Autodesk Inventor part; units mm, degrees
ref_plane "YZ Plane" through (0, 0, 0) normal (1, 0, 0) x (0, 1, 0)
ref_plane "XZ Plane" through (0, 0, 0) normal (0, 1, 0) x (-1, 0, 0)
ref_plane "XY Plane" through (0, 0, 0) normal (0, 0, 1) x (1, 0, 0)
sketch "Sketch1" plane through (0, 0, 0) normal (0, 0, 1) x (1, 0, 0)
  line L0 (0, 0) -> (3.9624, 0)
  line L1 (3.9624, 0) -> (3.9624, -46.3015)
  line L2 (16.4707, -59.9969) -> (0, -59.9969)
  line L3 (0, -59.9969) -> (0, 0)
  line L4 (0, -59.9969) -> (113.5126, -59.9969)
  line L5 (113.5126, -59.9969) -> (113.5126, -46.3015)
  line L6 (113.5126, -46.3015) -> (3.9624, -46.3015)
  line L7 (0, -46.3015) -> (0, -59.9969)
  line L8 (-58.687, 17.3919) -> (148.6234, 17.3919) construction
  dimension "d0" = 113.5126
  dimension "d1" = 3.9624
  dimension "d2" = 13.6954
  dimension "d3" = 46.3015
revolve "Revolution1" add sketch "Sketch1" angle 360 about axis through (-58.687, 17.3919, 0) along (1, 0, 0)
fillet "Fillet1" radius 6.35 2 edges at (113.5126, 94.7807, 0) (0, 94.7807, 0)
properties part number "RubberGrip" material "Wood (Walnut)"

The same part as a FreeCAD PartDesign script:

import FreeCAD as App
import Part
import Sketcher
from FreeCAD import Vector
Q = App.Units.Quantity


def edges_at(feature, points):
    """Names of the edges that pass closest to the given points."""
    edges = feature.Shape.Edges
    near = lambda p: min(range(len(edges)), key=lambda i: edges[i].distToShape(Part.Vertex(*p))[0])
    return sorted({f"Edge{near(p) + 1}" for p in points})

doc = App.newDocument("Part")
params = doc.addObject("Spreadsheet::Sheet", "Params")
for row, (alias, value) in enumerate([
    ("sketch1_width", "0.156 in"),
    ("sketch1_width2", "4.469 in"),
    ("revolution_angle", "360 deg"),
    ("fillet_radius", "0.25 in"),
], start=1):
    params.set(f"A{row}", alias)
    params.set(f"B{row}", "=" + value)
    params.setAlias(f"B{row}", alias)

body = doc.addObject("PartDesign::Body", "Body")

# Sketch on XY plane
sketch1 = body.newObject("Sketcher::SketchObject", "Sketch")
sketch1.AttachmentSupport = (doc.getObject("XY_Plane"), [""])
sketch1.MapMode = "FlatFace"
sketch1.addGeometry([
    Part.LineSegment(Vector(3.9624, 0, 0), Vector(0, 0, 0)),  # 0
    Part.LineSegment(Vector(0, 0, 0), Vector(0, -59.9969, 0)),  # 1
    Part.LineSegment(Vector(0, -59.9969, 0), Vector(113.5126, -59.9969, 0)),  # 2
    Part.LineSegment(Vector(113.5126, -59.9969, 0), Vector(113.5126, -46.3015, 0)),  # 3
    Part.LineSegment(Vector(113.5126, -46.3015, 0), Vector(3.9624, -46.3015, 0)),  # 4
    Part.LineSegment(Vector(3.9624, -46.3015, 0), Vector(3.9624, 0, 0)),  # 5
], False)
sketch1.addGeometry(Part.LineSegment(Vector(0, 17.3919, 0), Vector(113.5126, 17.3919, 0)), True)  # axis
sketch1.addConstraint([
    Sketcher.Constraint("Coincident", 0, 2, 1, 1),
    Sketcher.Constraint("Coincident", 1, 2, 2, 1),
    Sketcher.Constraint("Coincident", 2, 2, 3, 1),
    Sketcher.Constraint("Coincident", 3, 2, 4, 1),
    Sketcher.Constraint("Coincident", 4, 2, 5, 1),
    Sketcher.Constraint("Coincident", 5, 2, 0, 1),
    Sketcher.Constraint("Horizontal", 0),
    Sketcher.Constraint("Vertical", 1),
    Sketcher.Constraint("Horizontal", 2),
    Sketcher.Constraint("Vertical", 3),
    Sketcher.Constraint("Horizontal", 4),
    Sketcher.Constraint("Vertical", 5),
    Sketcher.Constraint("Horizontal", 6),
    Sketcher.Constraint("Coincident", 0, 2, -1, 1),
    Sketcher.Constraint("PointOnObject", 6, 1, -2),
    Sketcher.Constraint("Vertical", 3, 2, 6, 2),
    Sketcher.Constraint("DistanceX", 0, 2, 0, 1, Q("0.156 in")),
    Sketcher.Constraint("DistanceX", 2, 1, 2, 2, Q("4.469 in")),
    Sketcher.Constraint("DistanceY", 3, 1, 3, 2, Q("0.5392 in")),
    Sketcher.Constraint("DistanceY", 5, 1, 5, 2, Q("1.8229 in")),
    Sketcher.Constraint("DistanceY", 1, 2, 6, 1, Q("3.0468 in")),
])
sketch1.setExpression("Constraints[16]", "Params.sketch1_width")
sketch1.setExpression("Constraints[17]", "Params.sketch1_width2")
revolution = body.newObject("PartDesign::Revolution", "Revolution")
revolution.Profile = sketch1
revolution.ReferenceAxis = (sketch1, ["Axis0"])
revolution.setExpression("Angle", "Params.revolution_angle")
doc.recompute()

fillet = body.newObject("PartDesign::Fillet", "Fillet")
fillet.Base = (revolution, edges_at(revolution, [(113.513, 94.781, 0), (0, 94.781, 0)]))
fillet.setExpression("Radius", "Params.fillet_radius")

doc.recompute()
